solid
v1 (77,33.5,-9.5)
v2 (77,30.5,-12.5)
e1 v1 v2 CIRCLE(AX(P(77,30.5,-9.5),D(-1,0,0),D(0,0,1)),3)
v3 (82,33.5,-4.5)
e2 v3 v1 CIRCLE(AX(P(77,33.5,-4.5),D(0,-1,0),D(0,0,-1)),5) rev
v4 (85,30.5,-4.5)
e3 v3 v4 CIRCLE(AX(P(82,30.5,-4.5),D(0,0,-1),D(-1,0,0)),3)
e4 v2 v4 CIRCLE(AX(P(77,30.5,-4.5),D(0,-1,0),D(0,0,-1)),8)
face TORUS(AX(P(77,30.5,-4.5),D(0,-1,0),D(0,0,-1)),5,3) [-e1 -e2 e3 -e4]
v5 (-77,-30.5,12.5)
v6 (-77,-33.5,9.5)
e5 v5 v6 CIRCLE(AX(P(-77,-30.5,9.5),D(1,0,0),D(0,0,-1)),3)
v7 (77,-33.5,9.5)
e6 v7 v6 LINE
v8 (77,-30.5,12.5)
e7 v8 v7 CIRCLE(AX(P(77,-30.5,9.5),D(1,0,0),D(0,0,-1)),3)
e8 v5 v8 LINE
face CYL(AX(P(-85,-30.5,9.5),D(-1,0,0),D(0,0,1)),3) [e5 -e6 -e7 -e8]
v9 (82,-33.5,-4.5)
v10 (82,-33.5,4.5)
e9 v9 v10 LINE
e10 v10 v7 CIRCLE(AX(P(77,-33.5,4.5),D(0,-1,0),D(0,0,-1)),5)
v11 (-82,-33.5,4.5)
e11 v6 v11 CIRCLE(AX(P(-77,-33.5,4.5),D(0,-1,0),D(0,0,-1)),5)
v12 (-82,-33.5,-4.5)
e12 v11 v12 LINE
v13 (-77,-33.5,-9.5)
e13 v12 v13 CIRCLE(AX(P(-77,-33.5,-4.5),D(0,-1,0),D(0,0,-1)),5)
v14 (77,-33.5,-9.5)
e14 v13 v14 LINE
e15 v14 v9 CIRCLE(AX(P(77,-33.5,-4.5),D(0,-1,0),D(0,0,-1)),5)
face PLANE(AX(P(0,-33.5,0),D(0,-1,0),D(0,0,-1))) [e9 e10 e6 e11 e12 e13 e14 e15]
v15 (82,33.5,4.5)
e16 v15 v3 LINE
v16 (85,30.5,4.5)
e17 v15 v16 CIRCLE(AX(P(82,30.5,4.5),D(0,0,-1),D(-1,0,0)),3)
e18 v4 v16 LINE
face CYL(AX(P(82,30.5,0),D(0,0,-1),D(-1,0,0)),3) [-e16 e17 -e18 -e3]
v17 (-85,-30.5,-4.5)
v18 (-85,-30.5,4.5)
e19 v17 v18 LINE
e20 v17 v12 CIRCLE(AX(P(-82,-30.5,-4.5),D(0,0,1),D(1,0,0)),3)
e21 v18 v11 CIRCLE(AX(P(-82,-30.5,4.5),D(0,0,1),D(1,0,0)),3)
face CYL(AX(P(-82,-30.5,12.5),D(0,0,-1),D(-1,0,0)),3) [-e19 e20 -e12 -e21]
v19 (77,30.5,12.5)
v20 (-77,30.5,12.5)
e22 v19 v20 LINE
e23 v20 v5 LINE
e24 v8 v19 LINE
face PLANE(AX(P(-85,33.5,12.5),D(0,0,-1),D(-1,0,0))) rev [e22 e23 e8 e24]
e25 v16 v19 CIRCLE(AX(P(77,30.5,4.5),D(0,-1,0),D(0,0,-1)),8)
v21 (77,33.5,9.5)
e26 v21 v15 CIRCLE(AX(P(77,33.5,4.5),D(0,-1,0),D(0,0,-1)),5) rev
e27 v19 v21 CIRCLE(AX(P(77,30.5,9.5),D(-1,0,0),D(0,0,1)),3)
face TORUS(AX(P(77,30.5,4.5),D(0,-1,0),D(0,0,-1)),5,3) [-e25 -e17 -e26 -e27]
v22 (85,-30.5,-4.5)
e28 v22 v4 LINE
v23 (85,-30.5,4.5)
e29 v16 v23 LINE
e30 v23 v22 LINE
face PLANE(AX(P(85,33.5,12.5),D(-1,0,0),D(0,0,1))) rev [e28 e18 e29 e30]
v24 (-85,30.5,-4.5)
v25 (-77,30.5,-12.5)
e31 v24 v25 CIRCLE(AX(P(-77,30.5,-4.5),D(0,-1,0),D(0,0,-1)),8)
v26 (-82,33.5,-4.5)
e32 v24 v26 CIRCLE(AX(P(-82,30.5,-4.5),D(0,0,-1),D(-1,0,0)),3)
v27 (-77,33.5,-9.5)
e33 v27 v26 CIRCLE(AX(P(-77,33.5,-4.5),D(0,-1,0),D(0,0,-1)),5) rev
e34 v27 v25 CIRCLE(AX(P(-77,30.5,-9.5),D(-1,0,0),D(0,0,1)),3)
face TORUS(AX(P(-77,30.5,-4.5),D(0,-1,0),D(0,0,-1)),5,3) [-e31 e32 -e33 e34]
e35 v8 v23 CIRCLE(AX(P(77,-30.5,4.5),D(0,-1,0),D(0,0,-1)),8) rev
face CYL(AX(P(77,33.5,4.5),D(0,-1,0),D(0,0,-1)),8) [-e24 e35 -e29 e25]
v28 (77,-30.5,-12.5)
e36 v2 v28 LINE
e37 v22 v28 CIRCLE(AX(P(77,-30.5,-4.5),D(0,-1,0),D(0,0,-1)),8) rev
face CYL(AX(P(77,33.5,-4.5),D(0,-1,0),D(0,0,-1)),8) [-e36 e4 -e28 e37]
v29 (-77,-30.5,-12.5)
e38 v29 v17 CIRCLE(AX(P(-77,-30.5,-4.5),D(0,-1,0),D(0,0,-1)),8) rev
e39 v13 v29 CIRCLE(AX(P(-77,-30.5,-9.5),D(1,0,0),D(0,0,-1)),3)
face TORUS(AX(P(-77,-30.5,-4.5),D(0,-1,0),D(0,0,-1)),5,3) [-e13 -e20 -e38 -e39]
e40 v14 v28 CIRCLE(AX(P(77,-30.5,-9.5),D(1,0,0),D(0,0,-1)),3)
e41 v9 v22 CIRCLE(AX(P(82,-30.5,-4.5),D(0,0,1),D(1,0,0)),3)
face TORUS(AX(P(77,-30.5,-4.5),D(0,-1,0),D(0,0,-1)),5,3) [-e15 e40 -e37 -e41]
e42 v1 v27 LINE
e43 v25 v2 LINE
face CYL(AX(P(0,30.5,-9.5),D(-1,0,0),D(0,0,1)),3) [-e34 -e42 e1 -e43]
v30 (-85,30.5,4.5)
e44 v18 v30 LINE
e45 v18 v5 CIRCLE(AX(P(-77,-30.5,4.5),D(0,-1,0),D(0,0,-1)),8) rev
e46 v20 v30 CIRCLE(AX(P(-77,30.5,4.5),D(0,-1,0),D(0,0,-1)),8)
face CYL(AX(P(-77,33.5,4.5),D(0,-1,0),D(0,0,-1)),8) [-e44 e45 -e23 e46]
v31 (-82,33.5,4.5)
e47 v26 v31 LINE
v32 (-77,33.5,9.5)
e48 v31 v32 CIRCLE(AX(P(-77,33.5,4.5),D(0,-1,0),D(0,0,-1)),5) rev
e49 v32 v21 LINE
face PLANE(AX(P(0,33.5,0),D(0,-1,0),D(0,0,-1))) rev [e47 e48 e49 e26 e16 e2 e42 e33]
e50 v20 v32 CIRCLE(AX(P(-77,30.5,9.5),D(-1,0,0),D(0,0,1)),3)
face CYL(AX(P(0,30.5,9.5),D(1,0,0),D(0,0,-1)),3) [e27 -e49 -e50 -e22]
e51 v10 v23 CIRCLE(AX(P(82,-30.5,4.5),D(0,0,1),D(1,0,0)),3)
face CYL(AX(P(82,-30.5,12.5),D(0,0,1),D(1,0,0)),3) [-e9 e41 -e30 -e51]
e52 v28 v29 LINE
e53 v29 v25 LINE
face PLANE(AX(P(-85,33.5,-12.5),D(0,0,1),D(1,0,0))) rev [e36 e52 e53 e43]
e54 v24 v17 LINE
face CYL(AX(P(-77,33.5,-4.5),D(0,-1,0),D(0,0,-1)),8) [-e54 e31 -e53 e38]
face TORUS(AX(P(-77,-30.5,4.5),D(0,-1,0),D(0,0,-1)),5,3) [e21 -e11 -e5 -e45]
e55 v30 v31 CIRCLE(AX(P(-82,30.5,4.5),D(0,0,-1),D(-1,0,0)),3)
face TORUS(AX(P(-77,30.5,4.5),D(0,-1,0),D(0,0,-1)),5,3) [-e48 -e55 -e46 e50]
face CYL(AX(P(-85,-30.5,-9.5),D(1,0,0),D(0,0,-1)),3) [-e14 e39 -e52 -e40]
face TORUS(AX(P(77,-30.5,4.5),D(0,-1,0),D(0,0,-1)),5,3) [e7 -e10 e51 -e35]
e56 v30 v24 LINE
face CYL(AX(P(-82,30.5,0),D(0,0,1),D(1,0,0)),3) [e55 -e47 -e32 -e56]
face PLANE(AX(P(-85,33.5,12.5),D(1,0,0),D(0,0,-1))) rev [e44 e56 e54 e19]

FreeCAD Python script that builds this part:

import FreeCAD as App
import Part
import Sketcher


def edges_at(feature, points):
    """Names of the edges that pass closest to the given points."""
    edges = feature.Shape.Edges
    near = lambda p: min(range(len(edges)), key=lambda i: edges[i].distToShape(Part.Vertex(*p))[0])
    return sorted({f"Edge{near(p) + 1}" for p in points})


def add_polygon(sketch, points):
    """Adds a closed chain of lines whose ends are joined by coincident constraints."""
    first, n = sketch.GeometryCount, len(points)
    for a, b in zip(points, points[1:] + points[:1]):
        sketch.addGeometry(Part.LineSegment(App.Vector(*a, 0), App.Vector(*b, 0)), False)
    for i in range(n):
        sketch.addConstraint(Sketcher.Constraint("Coincident", first + i, 2, first + (i + 1) % n, 1))

doc = App.newDocument("Part")
body = doc.addObject("PartDesign::Body", "Body")

# Sketch on XZ plane
sketch1 = body.newObject("Sketcher::SketchObject", "Sketch")
sketch1.AttachmentSupport = (doc.getObject("XZ_Plane"), [""])
sketch1.MapMode = "FlatFace"
add_polygon(sketch1, [(-85, -12), (-85, 12), (85, 12), (85, -12)])  # lines 0-3
sketch1.addConstraint(Sketcher.Constraint("Vertical", 0))
sketch1.addConstraint(Sketcher.Constraint("Horizontal", 1))
sketch1.addConstraint(Sketcher.Constraint("Vertical", 2))
sketch1.addConstraint(Sketcher.Constraint("Horizontal", 3))
sketch1.addConstraint(Sketcher.Constraint("Symmetric", 0, 2, 2, 2, -1, 1))
sketch1.addConstraint(Sketcher.Constraint("DistanceX", 1, 1, 1, 2, 170.0))
sketch1.addConstraint(Sketcher.Constraint("DistanceY", 0, 1, 0, 2, 25.0))
pad1 = body.newObject("PartDesign::Pad", "Pad")
pad1.Profile = sketch1
pad1.Length = 67
pad1.Midplane = True
doc.recompute()

fillet = body.newObject("PartDesign::Fillet", "Fillet")
fillet.Base = (pad1, edges_at(pad1, [
    (-85, 0, -12.5),
    (85, 0, -12.5),
    (85, 0, 12.5),
    (-85, 0, 12.5),
]))
fillet.Radius = 8
doc.recompute()

fillet2 = body.newObject("PartDesign::Fillet", "Fillet001")
fillet2.Base = (fillet, edges_at(fillet, [
    (0, -33.5, 12.5),
    (0, 33.5, 12.5),
    (-85, -33.5, 0),
    (0, -33.5, -12.5),
    (85, -33.5, 0),
    (82.657, -33.5, 10.157),
    (82.657, -33.5, -10.157),
    (-82.657, -33.5, -10.157),
    (-82.657, -33.5, 10.157),
    (-85, 33.5, 0),
    (85, 33.5, 0),
    (0, 33.5, -12.5),
    (82.657, 33.5, 10.157),
    (82.657, 33.5, -10.157),
    (-82.657, 33.5, -10.157),
    (-82.657, 33.5, 10.157),
]))
fillet2.Radius = 3

doc.recompute()
